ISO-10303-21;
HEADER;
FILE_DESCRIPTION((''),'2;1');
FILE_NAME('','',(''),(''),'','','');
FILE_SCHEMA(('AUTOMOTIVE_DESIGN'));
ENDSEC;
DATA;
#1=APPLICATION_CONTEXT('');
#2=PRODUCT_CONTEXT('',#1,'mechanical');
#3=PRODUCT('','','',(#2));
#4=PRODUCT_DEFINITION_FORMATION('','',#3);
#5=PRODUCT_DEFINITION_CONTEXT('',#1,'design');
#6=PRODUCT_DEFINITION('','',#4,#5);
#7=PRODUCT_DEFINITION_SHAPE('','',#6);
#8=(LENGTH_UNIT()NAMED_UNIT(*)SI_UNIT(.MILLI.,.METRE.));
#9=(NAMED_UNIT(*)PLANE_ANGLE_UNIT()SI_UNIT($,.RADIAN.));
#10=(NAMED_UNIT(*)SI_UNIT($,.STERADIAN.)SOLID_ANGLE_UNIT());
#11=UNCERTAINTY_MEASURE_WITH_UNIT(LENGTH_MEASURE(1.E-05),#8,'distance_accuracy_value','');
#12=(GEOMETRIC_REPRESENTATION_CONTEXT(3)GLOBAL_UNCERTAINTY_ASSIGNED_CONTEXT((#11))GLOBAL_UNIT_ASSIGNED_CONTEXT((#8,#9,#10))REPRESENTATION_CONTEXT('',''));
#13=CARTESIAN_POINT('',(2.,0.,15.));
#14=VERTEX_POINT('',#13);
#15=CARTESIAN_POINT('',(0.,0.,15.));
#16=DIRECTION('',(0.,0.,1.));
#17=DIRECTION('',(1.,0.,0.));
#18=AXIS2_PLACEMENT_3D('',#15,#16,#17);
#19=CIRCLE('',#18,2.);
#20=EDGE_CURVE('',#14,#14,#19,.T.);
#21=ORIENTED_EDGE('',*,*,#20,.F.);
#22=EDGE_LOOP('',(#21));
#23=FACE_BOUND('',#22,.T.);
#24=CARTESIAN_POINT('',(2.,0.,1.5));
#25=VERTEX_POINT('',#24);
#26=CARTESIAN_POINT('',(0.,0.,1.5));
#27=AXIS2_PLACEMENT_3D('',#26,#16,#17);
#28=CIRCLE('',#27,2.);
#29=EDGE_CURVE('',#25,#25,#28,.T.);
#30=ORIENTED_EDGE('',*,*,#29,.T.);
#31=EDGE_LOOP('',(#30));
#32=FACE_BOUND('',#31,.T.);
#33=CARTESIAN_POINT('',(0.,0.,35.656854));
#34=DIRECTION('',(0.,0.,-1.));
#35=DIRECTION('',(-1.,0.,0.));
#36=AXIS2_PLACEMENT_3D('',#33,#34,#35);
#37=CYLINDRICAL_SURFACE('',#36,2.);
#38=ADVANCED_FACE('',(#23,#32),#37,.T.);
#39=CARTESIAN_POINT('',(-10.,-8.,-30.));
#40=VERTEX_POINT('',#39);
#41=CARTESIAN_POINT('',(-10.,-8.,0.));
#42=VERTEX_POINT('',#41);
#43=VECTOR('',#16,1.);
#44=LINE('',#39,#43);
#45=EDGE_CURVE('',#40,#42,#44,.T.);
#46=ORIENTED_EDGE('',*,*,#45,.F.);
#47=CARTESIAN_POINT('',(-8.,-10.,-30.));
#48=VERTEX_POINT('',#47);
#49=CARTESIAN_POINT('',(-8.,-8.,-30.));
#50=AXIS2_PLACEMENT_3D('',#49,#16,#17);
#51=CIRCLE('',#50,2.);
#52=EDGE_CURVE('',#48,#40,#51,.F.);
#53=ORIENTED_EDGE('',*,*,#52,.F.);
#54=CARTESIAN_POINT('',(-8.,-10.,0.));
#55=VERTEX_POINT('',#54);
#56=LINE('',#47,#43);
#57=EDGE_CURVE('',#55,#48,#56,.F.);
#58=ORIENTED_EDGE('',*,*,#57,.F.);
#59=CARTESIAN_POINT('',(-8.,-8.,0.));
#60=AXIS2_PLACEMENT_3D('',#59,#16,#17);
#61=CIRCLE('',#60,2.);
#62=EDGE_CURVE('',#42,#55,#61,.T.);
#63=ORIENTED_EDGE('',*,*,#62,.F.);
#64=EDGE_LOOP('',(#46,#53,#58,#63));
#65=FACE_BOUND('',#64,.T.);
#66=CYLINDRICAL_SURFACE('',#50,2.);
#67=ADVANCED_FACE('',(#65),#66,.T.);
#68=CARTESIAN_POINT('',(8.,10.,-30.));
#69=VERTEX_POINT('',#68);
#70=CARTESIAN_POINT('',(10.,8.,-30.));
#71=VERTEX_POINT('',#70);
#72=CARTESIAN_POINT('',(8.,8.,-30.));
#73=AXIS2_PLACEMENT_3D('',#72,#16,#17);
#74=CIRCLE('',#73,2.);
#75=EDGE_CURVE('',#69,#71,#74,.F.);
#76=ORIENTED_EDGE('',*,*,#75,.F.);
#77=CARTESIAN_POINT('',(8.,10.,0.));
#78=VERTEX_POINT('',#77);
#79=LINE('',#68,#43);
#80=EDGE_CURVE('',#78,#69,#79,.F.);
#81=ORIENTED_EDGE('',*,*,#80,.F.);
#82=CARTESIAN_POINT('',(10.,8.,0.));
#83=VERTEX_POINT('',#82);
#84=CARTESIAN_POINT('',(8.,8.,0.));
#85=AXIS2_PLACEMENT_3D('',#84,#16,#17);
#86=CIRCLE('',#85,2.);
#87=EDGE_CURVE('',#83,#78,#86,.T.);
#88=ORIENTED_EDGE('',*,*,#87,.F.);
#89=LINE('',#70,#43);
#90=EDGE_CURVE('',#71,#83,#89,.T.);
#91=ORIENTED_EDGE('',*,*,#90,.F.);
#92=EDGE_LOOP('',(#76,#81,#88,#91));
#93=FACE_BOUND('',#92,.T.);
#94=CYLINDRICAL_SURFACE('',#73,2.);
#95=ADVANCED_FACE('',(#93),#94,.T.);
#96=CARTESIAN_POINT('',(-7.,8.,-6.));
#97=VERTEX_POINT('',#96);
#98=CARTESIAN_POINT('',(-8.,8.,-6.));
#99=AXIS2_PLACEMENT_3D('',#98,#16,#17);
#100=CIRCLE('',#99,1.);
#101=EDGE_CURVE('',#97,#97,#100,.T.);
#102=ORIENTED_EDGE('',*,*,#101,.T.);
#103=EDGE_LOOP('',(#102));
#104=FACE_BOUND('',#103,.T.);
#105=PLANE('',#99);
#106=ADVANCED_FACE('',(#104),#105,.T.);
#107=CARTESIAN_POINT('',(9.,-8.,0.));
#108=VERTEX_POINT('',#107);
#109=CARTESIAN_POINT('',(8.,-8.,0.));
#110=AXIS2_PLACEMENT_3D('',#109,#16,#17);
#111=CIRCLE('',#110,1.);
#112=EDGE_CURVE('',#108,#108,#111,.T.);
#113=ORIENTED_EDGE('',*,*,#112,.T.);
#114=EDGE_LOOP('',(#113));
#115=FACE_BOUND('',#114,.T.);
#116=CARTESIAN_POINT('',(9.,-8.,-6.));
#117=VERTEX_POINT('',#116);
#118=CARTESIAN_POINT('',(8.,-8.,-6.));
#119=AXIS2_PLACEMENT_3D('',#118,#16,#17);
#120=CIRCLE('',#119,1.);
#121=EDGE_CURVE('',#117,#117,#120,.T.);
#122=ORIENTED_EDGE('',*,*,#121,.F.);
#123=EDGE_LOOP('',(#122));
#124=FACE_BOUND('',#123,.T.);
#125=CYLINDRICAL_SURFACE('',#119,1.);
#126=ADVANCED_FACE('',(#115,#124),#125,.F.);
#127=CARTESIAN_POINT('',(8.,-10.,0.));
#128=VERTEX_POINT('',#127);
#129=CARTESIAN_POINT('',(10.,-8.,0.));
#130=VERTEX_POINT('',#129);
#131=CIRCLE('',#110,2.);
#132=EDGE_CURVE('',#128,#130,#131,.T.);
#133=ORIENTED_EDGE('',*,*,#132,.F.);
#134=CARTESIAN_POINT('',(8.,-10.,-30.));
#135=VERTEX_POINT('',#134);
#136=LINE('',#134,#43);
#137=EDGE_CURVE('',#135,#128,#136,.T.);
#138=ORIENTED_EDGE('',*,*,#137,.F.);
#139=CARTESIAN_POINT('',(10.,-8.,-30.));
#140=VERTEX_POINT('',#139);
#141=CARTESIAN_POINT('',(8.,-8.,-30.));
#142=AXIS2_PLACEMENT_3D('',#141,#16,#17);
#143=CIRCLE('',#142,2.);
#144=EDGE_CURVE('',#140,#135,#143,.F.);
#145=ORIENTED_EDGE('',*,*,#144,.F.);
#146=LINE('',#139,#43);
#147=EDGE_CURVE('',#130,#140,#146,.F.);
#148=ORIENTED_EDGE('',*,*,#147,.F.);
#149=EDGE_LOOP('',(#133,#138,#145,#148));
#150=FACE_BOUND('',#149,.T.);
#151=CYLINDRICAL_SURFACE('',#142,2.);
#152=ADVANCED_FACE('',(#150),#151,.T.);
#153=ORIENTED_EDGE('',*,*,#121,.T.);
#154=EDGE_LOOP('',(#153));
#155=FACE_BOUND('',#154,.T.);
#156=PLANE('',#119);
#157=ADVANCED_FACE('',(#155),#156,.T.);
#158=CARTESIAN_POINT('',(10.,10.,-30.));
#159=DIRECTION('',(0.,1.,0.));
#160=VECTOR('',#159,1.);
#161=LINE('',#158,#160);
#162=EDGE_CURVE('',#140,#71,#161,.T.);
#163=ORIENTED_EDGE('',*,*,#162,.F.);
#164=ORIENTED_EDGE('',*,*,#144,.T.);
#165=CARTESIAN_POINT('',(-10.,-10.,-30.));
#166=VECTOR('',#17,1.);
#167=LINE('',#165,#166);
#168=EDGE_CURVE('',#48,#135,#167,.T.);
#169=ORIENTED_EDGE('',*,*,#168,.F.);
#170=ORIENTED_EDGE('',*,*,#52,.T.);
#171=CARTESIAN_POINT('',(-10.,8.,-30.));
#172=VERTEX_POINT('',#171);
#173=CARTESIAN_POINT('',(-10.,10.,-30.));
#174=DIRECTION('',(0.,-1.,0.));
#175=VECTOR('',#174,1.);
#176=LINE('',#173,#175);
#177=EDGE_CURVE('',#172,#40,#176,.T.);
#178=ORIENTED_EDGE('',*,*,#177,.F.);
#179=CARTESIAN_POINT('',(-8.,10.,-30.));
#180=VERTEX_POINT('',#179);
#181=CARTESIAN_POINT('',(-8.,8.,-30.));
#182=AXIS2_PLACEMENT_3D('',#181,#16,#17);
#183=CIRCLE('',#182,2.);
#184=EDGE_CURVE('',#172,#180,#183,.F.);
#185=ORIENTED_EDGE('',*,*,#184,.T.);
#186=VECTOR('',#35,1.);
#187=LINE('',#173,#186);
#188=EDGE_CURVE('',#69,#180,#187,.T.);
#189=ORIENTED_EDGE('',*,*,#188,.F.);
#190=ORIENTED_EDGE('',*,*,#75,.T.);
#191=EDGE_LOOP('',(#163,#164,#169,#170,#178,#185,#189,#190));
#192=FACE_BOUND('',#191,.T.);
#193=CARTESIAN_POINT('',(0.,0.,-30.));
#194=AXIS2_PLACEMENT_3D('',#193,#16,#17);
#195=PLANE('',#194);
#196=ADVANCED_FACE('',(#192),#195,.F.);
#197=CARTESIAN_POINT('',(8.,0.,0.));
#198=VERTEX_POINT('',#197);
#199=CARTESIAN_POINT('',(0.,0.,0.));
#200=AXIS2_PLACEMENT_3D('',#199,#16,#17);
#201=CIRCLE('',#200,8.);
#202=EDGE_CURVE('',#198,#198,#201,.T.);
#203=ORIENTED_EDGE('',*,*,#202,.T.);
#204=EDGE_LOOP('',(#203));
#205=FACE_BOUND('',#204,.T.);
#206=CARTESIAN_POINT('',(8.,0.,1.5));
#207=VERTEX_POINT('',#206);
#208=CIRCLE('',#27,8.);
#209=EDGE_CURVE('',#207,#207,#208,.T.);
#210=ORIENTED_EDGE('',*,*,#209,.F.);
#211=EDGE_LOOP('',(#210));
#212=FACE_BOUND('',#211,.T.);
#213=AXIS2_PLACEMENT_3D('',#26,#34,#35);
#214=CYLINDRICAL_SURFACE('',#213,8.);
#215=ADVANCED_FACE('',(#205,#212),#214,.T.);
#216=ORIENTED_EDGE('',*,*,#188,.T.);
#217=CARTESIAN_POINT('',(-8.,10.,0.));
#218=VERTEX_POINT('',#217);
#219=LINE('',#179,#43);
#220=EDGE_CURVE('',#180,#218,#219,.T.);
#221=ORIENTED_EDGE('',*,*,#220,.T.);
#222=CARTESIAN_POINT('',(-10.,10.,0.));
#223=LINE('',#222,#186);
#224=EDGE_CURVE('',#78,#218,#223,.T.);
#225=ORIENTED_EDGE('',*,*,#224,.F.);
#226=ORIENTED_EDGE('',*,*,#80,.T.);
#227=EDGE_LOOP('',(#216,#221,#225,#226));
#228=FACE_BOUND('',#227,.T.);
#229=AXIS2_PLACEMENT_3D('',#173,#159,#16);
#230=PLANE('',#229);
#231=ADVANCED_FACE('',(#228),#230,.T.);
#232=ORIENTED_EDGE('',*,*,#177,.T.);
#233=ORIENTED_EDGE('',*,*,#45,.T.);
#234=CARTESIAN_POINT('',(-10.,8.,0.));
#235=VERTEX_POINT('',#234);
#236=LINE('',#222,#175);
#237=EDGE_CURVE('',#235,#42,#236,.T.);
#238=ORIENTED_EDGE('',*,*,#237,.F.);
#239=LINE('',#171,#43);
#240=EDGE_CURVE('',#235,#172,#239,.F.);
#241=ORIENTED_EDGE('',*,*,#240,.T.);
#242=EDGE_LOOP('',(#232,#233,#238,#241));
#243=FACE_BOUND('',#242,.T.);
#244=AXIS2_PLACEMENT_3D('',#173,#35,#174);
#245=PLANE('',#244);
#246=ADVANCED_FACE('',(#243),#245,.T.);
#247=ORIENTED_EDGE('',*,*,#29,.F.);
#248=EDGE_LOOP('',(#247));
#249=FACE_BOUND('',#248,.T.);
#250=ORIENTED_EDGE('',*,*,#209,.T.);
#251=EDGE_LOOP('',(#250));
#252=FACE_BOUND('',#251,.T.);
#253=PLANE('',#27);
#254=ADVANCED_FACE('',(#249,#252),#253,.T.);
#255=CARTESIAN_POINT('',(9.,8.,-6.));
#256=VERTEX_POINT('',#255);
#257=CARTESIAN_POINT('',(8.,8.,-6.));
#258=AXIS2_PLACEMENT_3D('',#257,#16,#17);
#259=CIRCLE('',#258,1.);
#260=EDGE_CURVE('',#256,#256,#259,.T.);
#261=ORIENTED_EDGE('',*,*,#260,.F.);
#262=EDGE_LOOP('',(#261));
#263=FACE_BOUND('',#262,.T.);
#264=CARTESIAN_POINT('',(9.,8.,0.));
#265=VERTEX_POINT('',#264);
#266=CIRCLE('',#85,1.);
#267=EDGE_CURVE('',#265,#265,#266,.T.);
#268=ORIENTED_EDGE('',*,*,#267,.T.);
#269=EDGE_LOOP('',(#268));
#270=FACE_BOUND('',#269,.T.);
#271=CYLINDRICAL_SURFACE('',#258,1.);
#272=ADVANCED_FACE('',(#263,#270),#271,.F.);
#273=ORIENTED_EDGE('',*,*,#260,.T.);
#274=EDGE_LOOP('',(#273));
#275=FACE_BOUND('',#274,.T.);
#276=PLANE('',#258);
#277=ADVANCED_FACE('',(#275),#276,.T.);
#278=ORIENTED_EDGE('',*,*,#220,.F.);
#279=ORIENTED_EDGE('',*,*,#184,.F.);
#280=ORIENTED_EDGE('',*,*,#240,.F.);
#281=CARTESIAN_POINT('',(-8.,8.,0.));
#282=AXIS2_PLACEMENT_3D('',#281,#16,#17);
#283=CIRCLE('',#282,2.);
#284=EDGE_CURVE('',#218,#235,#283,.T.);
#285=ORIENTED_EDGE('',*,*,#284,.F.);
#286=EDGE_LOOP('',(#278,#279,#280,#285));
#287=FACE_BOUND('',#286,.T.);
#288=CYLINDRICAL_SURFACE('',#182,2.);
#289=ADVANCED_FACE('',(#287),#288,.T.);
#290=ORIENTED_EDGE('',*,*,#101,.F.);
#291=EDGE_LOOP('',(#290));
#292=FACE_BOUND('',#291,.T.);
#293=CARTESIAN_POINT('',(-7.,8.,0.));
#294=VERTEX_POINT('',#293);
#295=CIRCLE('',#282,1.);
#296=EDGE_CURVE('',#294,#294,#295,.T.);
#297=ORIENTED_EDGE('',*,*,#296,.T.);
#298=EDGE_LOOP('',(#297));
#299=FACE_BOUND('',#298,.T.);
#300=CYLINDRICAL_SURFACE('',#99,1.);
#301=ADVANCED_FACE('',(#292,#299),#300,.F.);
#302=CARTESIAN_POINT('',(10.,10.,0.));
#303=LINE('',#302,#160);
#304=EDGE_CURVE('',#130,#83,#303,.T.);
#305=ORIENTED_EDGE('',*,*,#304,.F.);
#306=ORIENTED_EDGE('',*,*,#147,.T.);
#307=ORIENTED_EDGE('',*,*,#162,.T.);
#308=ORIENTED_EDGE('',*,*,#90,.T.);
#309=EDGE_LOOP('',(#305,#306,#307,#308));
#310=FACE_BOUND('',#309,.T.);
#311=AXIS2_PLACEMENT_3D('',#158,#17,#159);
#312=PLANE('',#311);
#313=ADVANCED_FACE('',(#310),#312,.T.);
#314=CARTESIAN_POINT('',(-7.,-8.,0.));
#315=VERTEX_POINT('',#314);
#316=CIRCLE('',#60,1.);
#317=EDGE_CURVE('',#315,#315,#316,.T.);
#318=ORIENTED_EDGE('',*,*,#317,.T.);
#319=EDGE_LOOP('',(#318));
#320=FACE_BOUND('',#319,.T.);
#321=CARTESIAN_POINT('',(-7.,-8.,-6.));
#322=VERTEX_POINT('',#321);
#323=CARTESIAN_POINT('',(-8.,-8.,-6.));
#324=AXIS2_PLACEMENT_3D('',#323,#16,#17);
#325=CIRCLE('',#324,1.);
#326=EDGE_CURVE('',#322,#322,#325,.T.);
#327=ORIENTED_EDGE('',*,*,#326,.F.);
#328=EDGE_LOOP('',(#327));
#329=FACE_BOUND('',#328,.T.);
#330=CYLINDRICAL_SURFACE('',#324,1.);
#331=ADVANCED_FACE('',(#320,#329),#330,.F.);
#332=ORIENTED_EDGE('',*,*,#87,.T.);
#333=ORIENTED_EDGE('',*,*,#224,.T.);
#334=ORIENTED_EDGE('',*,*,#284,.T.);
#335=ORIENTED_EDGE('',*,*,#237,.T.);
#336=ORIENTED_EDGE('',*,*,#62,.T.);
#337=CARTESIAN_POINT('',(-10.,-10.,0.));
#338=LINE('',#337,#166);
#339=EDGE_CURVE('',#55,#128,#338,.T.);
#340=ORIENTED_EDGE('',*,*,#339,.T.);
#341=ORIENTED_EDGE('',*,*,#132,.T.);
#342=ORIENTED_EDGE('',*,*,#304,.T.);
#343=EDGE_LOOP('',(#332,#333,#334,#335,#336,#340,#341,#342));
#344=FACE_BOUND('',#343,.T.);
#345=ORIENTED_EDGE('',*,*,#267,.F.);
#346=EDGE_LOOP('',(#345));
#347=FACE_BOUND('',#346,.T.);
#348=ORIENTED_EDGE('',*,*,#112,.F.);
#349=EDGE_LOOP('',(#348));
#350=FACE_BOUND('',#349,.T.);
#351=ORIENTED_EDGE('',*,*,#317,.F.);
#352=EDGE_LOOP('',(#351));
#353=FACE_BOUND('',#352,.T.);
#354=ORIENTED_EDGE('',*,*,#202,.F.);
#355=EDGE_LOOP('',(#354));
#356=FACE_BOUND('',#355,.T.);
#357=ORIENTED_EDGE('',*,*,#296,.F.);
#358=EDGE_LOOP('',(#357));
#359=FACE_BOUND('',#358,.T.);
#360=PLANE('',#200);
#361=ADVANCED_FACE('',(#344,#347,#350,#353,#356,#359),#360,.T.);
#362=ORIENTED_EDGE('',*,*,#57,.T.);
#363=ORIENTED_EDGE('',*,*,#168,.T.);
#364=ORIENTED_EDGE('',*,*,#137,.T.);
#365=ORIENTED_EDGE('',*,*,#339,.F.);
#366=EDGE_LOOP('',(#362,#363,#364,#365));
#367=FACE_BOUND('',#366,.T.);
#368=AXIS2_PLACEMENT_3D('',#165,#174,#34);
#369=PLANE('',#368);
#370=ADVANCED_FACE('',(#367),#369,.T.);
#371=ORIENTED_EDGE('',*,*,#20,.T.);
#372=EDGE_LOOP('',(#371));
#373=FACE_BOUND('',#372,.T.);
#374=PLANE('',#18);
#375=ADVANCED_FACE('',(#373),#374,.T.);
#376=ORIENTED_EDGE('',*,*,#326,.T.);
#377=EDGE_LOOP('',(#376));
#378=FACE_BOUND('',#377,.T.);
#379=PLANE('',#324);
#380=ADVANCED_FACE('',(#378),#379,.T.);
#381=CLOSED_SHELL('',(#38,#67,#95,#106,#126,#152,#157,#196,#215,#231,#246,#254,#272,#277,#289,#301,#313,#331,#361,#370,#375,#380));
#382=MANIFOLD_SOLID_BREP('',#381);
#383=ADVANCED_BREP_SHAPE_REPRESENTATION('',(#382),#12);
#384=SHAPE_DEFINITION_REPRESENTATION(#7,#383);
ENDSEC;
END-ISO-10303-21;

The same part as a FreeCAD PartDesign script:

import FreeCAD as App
import Part
import Sketcher
from FreeCAD import Vector
Q = App.Units.Quantity


def edges_at(feature, points):
    """Names of the edges that pass closest to the given points."""
    edges = feature.Shape.Edges
    near = lambda p: min(range(len(edges)), key=lambda i: edges[i].distToShape(Part.Vertex(*p))[0])
    return sorted({f"Edge{near(p) + 1}" for p in points})

doc = App.newDocument("Part")
body = doc.addObject("PartDesign::Body", "Body")

sketch1 = body.newObject("Sketcher::SketchObject", "Sketch")
sketch1.AttachmentSupport = (doc.getObject("XY_Plane"), [""])
sketch1.MapMode = "FlatFace"
sketch1.addGeometry([
    Part.LineSegment(Vector(-10, 10, 0), Vector(-10, -10, 0)),
    Part.LineSegment(Vector(-10, -10, 0), Vector(10, -10, 0)),
    Part.LineSegment(Vector(10, -10, 0), Vector(10, 10, 0)),
    Part.LineSegment(Vector(10, 10, 0), Vector(-10, 10, 0)),
], False)
sketch1.addConstraint([
    Sketcher.Constraint("Coincident", 0, 2, 1, 1),
    Sketcher.Constraint("Coincident", 1, 2, 2, 1),
    Sketcher.Constraint("Coincident", 2, 2, 3, 1),
    Sketcher.Constraint("Coincident", 3, 2, 0, 1),
    Sketcher.Constraint("Vertical", 0),
    Sketcher.Constraint("Horizontal", 1),
    Sketcher.Constraint("Vertical", 2),
    Sketcher.Constraint("Horizontal", 3),
    Sketcher.Constraint("Symmetric", 0, 2, 2, 2, -1, 1),
    Sketcher.Constraint("Equal", 3, 0),
    Sketcher.Constraint("DistanceX", 1, 1, 1, 2, Q("20 mm")),
])
pad1 = body.newObject("PartDesign::Pad", "Pad")
pad1.Profile = sketch1
pad1.Length = 30
pad1.Reversed = True

sketch2 = body.newObject("Sketcher::SketchObject", "Sketch001")
sketch2.AttachmentSupport = (doc.getObject("XY_Plane"), [""])
sketch2.MapMode = "FlatFace"
sketch2.addGeometry([
    Part.Circle(Vector(-8, 8, 0), Vector(0, 0, 1), 1),
    Part.Circle(Vector(8, 8, 0), Vector(0, 0, 1), 1),
    Part.Circle(Vector(8, -8, 0), Vector(0, 0, 1), 1),
    Part.Circle(Vector(-8, -8, 0), Vector(0, 0, 1), 1),
], False)
sketch2.addConstraint([
    Sketcher.Constraint("Equal", 0, 1),
    Sketcher.Constraint("Equal", 1, 2),
    Sketcher.Constraint("Equal", 2, 3),
    Sketcher.Constraint("Symmetric", 0, 3, 2, 3, -1, 1),
    Sketcher.Constraint("Symmetric", 1, 3, 3, 3, -1, 1),
    Sketcher.Constraint("Symmetric", 0, 3, 1, 3, -2),
    Sketcher.Constraint("Diameter", 0, Q("2 mm")),
    Sketcher.Constraint("DistanceX", 0, 3, -1, 1, Q("8 mm")),
    Sketcher.Constraint("DistanceY", -1, 1, 0, 3, Q("8 mm")),
])
pocket1 = body.newObject("PartDesign::Pocket", "Pocket")
pocket1.Profile = sketch2
pocket1.Length = 6
doc.recompute()

fillet = body.newObject("PartDesign::Fillet", "Fillet")
fillet.Base = (pocket1, edges_at(pocket1, [
    (10, -10, -15),
    (-10, -10, -15),
    (-10, 10, -15),
    (10, 10, -15),
]))
fillet.Radius = 2

sketch3 = body.newObject("Sketcher::SketchObject", "Sketch002")
sketch3.AttachmentSupport = (doc.getObject("XY_Plane"), [""])
sketch3.MapMode = "FlatFace"
sketch3.addGeometry(Part.Circle(Vector(0, 0, 0), Vector(0, 0, 1), 8), False)
sketch3.addConstraint([
    Sketcher.Constraint("Coincident", 0, 3, -1, 1),
    Sketcher.Constraint("Diameter", 0, Q("16 mm")),
])
pad2 = body.newObject("PartDesign::Pad", "Pad001")
pad2.Profile = sketch3
pad2.Length = 1.5

sketch4 = body.newObject("Sketcher::SketchObject", "Sketch003")
sketch4.AttachmentSupport = (doc.getObject("XY_Plane"), [""])
sketch4.MapMode = "FlatFace"
sketch4.AttachmentOffset = App.Placement(Vector(0, 0, 1.5), App.Rotation())
sketch4.addGeometry(Part.Circle(Vector(0, 0, 0), Vector(0, 0, 1), 2), False)
sketch4.addConstraint([
    Sketcher.Constraint("Coincident", 0, 3, -1, 1),
    Sketcher.Constraint("Diameter", 0, Q("4 mm")),
])
pad3 = body.newObject("PartDesign::Pad", "Pad002")
pad3.Profile = sketch4
pad3.Length = 13.5

doc.recompute()
